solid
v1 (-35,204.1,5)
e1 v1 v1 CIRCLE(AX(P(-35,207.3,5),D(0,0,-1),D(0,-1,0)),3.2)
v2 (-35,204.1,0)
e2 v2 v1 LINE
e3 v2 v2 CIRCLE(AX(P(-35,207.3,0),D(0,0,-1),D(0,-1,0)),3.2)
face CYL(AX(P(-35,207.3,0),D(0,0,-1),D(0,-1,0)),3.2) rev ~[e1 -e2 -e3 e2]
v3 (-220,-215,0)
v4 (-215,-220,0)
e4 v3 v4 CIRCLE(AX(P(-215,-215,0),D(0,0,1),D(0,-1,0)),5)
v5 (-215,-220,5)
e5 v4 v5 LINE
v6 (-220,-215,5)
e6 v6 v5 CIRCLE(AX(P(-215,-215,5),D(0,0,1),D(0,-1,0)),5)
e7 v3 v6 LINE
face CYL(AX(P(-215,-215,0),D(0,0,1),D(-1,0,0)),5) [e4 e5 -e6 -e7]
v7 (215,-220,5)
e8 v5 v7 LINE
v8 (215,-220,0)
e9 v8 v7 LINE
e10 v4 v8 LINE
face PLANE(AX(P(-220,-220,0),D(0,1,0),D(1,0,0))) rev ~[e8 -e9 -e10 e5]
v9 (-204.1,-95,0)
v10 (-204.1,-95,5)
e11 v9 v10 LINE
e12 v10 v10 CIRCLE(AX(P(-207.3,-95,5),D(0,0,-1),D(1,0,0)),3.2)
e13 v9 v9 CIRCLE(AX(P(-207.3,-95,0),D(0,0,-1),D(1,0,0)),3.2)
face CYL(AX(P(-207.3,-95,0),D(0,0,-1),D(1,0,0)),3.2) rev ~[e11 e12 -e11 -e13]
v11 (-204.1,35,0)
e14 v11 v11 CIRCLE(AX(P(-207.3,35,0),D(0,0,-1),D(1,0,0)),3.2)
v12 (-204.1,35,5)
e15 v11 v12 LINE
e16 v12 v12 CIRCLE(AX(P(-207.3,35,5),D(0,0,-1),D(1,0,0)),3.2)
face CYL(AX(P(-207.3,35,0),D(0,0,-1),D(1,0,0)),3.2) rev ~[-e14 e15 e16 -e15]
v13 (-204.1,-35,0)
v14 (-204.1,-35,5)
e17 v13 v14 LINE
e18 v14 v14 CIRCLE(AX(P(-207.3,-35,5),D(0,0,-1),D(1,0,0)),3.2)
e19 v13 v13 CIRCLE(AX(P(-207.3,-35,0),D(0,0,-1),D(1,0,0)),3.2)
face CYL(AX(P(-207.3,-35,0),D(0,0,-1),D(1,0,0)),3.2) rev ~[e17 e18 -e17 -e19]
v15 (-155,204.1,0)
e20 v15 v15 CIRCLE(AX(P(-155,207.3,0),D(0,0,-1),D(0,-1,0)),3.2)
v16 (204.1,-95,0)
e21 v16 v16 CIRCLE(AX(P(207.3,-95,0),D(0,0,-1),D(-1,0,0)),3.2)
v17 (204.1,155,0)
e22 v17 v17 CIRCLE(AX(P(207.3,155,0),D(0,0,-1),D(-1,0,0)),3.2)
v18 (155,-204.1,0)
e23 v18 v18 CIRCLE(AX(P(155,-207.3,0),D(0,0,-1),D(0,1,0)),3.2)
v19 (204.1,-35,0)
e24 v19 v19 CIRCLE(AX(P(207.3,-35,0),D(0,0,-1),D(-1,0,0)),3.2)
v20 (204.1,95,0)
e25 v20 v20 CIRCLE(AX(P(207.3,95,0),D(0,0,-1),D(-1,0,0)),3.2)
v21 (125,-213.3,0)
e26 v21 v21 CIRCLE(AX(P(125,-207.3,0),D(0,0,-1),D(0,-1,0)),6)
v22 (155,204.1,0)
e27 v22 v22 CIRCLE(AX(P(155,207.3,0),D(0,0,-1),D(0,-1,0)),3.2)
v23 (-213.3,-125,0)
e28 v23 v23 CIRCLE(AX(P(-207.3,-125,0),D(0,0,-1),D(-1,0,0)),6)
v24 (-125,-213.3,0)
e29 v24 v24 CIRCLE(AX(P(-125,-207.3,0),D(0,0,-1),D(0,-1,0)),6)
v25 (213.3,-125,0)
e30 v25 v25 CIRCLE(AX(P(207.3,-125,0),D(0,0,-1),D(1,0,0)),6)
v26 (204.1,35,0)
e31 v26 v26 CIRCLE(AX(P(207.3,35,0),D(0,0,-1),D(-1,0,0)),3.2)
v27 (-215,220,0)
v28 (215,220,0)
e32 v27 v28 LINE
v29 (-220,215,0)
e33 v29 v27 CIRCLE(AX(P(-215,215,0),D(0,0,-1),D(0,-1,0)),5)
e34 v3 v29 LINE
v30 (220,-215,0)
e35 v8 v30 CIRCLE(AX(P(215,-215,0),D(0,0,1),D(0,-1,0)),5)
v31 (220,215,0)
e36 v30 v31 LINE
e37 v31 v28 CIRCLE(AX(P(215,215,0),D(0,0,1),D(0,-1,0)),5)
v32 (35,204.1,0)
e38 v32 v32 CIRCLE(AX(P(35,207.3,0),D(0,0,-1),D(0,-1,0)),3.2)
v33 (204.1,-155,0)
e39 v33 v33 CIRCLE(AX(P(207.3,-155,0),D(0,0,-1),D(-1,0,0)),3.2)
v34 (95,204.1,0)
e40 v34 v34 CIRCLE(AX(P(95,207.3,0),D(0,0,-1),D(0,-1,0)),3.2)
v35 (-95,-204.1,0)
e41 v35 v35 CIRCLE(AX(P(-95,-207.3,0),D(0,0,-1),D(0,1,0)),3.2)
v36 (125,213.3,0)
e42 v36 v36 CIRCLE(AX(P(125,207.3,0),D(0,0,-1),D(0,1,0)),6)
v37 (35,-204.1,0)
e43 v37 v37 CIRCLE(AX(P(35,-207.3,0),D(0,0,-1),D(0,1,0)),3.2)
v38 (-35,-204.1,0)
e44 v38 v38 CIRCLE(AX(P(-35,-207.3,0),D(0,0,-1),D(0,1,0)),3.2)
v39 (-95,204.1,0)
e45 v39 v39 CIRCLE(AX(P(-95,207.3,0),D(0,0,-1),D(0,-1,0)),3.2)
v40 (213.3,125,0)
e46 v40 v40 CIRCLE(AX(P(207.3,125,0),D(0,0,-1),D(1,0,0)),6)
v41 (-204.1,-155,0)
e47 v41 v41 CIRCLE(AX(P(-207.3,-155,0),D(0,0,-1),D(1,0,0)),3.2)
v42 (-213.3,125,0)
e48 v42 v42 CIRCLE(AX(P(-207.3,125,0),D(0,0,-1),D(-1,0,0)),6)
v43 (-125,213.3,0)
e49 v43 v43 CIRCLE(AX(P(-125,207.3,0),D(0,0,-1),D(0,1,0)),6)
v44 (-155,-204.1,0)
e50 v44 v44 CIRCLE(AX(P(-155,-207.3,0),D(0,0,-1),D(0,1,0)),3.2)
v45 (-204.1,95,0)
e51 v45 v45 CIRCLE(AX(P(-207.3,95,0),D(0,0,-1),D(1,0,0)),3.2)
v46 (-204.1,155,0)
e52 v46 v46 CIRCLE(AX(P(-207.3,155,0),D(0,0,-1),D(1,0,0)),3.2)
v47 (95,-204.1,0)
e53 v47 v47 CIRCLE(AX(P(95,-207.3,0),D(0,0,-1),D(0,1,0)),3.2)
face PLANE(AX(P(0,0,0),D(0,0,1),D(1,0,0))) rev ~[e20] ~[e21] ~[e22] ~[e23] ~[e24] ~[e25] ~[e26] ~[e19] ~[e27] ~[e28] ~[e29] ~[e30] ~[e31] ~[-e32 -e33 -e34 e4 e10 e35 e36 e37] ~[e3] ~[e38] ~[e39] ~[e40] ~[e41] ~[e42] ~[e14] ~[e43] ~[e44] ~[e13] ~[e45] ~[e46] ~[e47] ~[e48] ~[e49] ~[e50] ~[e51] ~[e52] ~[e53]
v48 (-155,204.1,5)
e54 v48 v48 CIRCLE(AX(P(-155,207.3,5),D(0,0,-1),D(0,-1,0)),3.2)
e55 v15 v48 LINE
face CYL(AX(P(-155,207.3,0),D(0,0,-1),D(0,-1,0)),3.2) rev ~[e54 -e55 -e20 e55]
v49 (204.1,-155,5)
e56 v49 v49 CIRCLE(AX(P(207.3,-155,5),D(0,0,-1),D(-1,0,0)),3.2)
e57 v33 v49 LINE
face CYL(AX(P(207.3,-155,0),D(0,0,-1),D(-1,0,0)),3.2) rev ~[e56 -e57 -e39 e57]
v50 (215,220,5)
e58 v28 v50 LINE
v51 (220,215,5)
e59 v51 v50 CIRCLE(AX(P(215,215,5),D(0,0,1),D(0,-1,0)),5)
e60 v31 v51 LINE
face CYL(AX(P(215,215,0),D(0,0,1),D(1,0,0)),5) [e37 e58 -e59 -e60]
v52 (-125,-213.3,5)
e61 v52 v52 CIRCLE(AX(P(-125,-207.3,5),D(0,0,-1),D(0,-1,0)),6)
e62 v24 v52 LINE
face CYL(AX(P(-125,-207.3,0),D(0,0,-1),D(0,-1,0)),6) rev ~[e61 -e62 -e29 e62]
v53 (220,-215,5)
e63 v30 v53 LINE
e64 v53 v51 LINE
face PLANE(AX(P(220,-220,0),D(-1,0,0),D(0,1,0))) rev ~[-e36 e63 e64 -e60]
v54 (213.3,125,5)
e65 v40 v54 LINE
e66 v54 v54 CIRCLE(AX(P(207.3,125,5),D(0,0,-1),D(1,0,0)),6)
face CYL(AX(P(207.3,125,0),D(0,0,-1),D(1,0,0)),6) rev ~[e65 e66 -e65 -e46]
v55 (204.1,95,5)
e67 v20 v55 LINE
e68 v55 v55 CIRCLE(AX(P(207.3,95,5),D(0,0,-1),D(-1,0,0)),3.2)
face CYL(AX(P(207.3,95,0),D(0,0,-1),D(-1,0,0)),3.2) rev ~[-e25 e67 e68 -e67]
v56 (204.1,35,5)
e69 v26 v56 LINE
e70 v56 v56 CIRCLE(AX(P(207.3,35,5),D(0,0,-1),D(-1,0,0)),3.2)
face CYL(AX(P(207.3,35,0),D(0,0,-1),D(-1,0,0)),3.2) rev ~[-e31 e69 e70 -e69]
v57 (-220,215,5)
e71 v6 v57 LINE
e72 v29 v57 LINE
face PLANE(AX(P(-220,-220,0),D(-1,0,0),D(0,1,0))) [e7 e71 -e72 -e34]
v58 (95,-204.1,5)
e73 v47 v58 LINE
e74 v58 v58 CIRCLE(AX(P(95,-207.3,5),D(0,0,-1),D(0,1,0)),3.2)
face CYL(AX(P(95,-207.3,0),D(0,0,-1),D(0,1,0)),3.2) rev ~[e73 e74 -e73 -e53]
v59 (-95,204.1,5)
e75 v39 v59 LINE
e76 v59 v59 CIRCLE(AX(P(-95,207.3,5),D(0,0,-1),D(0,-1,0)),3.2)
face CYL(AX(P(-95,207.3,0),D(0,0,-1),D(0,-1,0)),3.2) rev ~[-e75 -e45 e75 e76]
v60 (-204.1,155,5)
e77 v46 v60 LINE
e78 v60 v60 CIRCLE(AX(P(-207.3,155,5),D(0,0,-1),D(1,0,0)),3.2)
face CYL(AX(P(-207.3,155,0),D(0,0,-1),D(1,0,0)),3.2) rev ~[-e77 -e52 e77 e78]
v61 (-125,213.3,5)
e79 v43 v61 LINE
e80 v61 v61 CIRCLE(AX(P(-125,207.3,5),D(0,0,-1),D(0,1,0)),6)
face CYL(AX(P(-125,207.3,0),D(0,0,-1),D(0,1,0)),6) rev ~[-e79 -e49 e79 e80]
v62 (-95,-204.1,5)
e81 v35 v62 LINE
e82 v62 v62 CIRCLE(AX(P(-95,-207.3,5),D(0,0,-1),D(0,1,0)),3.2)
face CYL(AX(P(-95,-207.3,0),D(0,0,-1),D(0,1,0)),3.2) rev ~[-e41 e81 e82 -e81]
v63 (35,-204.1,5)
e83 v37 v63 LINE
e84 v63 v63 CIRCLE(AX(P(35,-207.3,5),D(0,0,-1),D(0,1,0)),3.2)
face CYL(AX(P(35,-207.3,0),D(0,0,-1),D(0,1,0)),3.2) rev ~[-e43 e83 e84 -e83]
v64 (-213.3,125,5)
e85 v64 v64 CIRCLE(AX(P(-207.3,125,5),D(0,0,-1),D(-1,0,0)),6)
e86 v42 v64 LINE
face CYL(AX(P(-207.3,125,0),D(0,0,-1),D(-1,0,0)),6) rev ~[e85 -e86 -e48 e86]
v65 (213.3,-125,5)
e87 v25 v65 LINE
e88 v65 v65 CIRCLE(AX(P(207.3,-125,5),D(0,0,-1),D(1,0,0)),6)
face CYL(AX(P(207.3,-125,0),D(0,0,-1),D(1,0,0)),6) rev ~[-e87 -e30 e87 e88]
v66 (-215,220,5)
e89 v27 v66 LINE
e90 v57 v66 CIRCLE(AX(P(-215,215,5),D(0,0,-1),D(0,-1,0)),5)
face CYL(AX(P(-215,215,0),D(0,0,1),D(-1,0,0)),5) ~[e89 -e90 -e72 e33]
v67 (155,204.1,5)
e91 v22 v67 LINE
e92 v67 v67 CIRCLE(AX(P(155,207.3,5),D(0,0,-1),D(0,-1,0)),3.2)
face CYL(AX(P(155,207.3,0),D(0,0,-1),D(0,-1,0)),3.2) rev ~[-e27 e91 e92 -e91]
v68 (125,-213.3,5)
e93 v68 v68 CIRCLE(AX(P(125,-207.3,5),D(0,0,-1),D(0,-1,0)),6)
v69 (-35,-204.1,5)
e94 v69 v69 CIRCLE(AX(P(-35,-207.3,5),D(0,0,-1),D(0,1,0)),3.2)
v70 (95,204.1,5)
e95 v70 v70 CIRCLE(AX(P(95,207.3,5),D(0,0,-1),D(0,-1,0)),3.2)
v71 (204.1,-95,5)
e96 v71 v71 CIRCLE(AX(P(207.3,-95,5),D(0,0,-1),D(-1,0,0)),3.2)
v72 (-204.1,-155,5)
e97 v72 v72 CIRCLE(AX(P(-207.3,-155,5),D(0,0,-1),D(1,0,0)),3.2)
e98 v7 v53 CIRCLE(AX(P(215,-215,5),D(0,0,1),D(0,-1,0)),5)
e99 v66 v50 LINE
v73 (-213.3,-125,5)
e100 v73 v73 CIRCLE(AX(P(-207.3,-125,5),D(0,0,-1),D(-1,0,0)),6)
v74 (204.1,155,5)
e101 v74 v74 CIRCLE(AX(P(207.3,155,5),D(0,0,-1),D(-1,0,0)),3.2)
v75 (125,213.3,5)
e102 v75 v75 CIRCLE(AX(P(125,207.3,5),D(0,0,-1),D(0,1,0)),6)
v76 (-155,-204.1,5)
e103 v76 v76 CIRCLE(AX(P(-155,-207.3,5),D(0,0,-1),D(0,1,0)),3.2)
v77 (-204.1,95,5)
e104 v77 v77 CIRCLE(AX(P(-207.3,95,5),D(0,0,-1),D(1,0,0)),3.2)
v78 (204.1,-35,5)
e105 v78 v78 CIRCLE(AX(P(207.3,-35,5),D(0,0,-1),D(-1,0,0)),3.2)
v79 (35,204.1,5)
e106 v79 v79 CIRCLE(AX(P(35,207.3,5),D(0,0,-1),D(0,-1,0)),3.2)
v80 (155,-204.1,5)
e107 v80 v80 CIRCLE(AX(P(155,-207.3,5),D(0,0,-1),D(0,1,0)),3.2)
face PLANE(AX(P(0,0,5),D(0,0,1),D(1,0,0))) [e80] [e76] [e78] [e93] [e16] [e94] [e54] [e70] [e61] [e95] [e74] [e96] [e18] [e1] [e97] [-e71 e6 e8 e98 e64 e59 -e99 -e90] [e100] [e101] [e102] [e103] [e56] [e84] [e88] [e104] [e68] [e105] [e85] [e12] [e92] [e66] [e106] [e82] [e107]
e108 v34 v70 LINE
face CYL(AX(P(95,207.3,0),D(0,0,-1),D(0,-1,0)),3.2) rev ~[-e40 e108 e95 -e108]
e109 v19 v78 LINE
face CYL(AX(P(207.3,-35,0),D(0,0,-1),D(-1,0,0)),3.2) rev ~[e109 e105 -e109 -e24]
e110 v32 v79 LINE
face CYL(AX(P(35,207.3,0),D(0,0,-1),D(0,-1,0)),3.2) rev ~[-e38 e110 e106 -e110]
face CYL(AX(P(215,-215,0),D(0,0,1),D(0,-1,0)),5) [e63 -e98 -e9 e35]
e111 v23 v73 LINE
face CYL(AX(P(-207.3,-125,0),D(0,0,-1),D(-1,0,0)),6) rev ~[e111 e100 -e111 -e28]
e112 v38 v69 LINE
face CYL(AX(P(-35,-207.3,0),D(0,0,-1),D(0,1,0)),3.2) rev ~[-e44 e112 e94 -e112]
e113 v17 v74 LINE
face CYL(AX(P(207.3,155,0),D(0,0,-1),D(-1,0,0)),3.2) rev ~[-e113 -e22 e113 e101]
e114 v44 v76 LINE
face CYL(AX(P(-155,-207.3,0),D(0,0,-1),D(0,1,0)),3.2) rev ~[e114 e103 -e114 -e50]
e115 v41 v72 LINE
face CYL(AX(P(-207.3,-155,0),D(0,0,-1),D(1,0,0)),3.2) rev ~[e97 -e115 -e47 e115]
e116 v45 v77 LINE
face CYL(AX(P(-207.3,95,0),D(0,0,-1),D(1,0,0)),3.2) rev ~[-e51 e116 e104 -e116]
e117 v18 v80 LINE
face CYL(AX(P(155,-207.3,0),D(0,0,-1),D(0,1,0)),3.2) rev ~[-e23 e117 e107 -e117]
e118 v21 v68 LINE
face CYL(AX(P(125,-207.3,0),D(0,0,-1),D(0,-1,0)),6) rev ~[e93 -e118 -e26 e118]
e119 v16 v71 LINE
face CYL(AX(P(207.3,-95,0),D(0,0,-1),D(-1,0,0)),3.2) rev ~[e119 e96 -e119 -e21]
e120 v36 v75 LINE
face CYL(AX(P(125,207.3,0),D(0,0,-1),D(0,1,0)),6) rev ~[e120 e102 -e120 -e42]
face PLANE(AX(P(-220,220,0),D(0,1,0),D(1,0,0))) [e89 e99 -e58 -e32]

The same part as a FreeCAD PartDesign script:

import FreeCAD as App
import Part
import Sketcher


def edges_at(feature, points):
    """Names of the edges that pass closest to the given points."""
    edges = feature.Shape.Edges
    near = lambda p: min(range(len(edges)), key=lambda i: edges[i].distToShape(Part.Vertex(*p))[0])
    return sorted({f"Edge{near(p) + 1}" for p in points})

doc = App.newDocument("Part")
body = doc.addObject("PartDesign::Body", "Body")

# Sketch on XY plane
sketch1 = doc.addObject("Sketcher::SketchObject", "Sketch")
body.addObject(sketch1)
sketch1.AttachmentSupport = (doc.XY_Plane, [""])
sketch1.MapMode = "FlatFace"
sketch1.addGeometry([
    Part.LineSegment(App.Vector(-220, 220, 0), App.Vector(-220, -220, 0)),
    Part.LineSegment(App.Vector(-220, -220, 0), App.Vector(220, -220, 0)),
    Part.LineSegment(App.Vector(220, -220, 0), App.Vector(220, 220, 0)),
    Part.LineSegment(App.Vector(220, 220, 0), App.Vector(-220, 220, 0)),
], False)
sketch1.addConstraint([
    Sketcher.Constraint("Coincident", 0, 2, 1, 1),
    Sketcher.Constraint("Coincident", 1, 2, 2, 1),
    Sketcher.Constraint("Coincident", 2, 2, 3, 1),
    Sketcher.Constraint("Coincident", 3, 2, 0, 1),
    Sketcher.Constraint("Vertical", 0),
    Sketcher.Constraint("Horizontal", 1),
    Sketcher.Constraint("Vertical", 2),
    Sketcher.Constraint("Horizontal", 3),
    Sketcher.Constraint("Symmetric", 0, 2, 2, 2, -1, 1),
    Sketcher.Constraint("Equal", 3, 0),
    Sketcher.Constraint("DistanceX", 1, 1, 1, 2, 440.0),
])
pad1 = doc.addObject("PartDesign::Pad", "Pad")
body.addObject(pad1)
pad1.Profile = sketch1
pad1.Length = 5
doc.recompute()

fillet = doc.addObject("PartDesign::Fillet", "Fillet")
body.addObject(fillet)
fillet.Base = (pad1, edges_at(pad1, [
    (-220, 220, 2.5),
    (220, 220, 2.5),
    (220, -220, 2.5),
    (-220, -220, 2.5),
]))
fillet.Radius = 5

# Sketch on XY plane
sketch2 = doc.addObject("Sketcher::SketchObject", "Sketch001")
body.addObject(sketch2)
sketch2.AttachmentSupport = (doc.XY_Plane, [""])
sketch2.MapMode = "FlatFace"
sketch2.addGeometry([
    Part.Circle(App.Vector(207.3, -155, 0), App.Vector(0, 0, 1), 3.2),  # 0
    Part.Circle(App.Vector(207.3, -95, 0), App.Vector(0, 0, 1), 3.2),  # 1
    Part.Circle(App.Vector(207.3, -35, 0), App.Vector(0, 0, 1), 3.2),  # 2
    Part.Circle(App.Vector(207.3, 35, 0), App.Vector(0, 0, 1), 3.2),  # 3
    Part.Circle(App.Vector(207.3, 95, 0), App.Vector(0, 0, 1), 3.2),  # 4
    Part.Circle(App.Vector(207.3, 155, 0), App.Vector(0, 0, 1), 3.2),  # 5
], False)
sketch2.addConstraint([
    Sketcher.Constraint("Equal", 0, 1),
    Sketcher.Constraint("Equal", 1, 2),
    Sketcher.Constraint("Equal", 2, 3),
    Sketcher.Constraint("Equal", 3, 4),
    Sketcher.Constraint("Equal", 4, 5),
    Sketcher.Constraint("Symmetric", 2, 3, 3, 3, -1),
    Sketcher.Constraint("Symmetric", 1, 3, 4, 3, -1),
    Sketcher.Constraint("Symmetric", 0, 3, 5, 3, -1),
    Sketcher.Constraint("Vertical", 0, 3, 1, 3),
    Sketcher.Constraint("Vertical", 1, 3, 2, 3),
    Sketcher.Constraint("Diameter", 0, 6.4),
    Sketcher.Constraint("DistanceY", 0, 3, -1, 1, 155.0),
    Sketcher.Constraint("DistanceY", 1, 3, -1, 1, 95.0),
    Sketcher.Constraint("DistanceY", 2, 3, -1, 1, 35.0),
    Sketcher.Constraint("DistanceX", -1, 1, 0, 3, 207.3),
])
pocket1 = doc.addObject("PartDesign::Pocket", "Pocket")
body.addObject(pocket1)
pocket1.Profile = sketch2
pocket1.Type = "ThroughAll"
pocket1.Reversed = True
doc.recompute()

polarpattern = doc.addObject("PartDesign::PolarPattern", "PolarPattern")
body.addObject(polarpattern)
polarpattern.Originals = [pocket1]
polarpattern.Axis = (doc.Z_Axis, [""])
polarpattern.Angle = 360
polarpattern.Occurrences = 4
body.Tip = polarpattern

# Sketch on XY plane
sketch3 = doc.addObject("Sketcher::SketchObject", "Sketch002")
body.addObject(sketch3)
sketch3.AttachmentSupport = (doc.XY_Plane, [""])
sketch3.MapMode = "FlatFace"
sketch3.addGeometry([
    Part.Circle(App.Vector(-207, -125, 0), App.Vector(0, 0, 1), 6),
    Part.Circle(App.Vector(-207, 125, 0), App.Vector(0, 0, 1), 6),
], False)
sketch3.addConstraint([
    Sketcher.Constraint("Equal", 0, 1),
    Sketcher.Constraint("Symmetric", 0, 3, 1, 3, -1),
    Sketcher.Constraint("Diameter", 0, 12.0),
    Sketcher.Constraint("DistanceY", 0, 3, -1, 1, 125.0),
    Sketcher.Constraint("DistanceX", 0, 3, -1, 1, 207.3),
])
pocket2 = doc.addObject("PartDesign::Pocket", "Pocket001")
body.addObject(pocket2)
pocket2.Profile = sketch3
pocket2.Length = 5
pocket2.Reversed = True
doc.recompute()

polarpattern2 = doc.addObject("PartDesign::PolarPattern", "PolarPattern001")
body.addObject(polarpattern2)
polarpattern2.Originals = [pocket2]
polarpattern2.Axis = (doc.Z_Axis, [""])
polarpattern2.Angle = 360
polarpattern2.Occurrences = 4
body.Tip = polarpattern2

doc.recompute()
